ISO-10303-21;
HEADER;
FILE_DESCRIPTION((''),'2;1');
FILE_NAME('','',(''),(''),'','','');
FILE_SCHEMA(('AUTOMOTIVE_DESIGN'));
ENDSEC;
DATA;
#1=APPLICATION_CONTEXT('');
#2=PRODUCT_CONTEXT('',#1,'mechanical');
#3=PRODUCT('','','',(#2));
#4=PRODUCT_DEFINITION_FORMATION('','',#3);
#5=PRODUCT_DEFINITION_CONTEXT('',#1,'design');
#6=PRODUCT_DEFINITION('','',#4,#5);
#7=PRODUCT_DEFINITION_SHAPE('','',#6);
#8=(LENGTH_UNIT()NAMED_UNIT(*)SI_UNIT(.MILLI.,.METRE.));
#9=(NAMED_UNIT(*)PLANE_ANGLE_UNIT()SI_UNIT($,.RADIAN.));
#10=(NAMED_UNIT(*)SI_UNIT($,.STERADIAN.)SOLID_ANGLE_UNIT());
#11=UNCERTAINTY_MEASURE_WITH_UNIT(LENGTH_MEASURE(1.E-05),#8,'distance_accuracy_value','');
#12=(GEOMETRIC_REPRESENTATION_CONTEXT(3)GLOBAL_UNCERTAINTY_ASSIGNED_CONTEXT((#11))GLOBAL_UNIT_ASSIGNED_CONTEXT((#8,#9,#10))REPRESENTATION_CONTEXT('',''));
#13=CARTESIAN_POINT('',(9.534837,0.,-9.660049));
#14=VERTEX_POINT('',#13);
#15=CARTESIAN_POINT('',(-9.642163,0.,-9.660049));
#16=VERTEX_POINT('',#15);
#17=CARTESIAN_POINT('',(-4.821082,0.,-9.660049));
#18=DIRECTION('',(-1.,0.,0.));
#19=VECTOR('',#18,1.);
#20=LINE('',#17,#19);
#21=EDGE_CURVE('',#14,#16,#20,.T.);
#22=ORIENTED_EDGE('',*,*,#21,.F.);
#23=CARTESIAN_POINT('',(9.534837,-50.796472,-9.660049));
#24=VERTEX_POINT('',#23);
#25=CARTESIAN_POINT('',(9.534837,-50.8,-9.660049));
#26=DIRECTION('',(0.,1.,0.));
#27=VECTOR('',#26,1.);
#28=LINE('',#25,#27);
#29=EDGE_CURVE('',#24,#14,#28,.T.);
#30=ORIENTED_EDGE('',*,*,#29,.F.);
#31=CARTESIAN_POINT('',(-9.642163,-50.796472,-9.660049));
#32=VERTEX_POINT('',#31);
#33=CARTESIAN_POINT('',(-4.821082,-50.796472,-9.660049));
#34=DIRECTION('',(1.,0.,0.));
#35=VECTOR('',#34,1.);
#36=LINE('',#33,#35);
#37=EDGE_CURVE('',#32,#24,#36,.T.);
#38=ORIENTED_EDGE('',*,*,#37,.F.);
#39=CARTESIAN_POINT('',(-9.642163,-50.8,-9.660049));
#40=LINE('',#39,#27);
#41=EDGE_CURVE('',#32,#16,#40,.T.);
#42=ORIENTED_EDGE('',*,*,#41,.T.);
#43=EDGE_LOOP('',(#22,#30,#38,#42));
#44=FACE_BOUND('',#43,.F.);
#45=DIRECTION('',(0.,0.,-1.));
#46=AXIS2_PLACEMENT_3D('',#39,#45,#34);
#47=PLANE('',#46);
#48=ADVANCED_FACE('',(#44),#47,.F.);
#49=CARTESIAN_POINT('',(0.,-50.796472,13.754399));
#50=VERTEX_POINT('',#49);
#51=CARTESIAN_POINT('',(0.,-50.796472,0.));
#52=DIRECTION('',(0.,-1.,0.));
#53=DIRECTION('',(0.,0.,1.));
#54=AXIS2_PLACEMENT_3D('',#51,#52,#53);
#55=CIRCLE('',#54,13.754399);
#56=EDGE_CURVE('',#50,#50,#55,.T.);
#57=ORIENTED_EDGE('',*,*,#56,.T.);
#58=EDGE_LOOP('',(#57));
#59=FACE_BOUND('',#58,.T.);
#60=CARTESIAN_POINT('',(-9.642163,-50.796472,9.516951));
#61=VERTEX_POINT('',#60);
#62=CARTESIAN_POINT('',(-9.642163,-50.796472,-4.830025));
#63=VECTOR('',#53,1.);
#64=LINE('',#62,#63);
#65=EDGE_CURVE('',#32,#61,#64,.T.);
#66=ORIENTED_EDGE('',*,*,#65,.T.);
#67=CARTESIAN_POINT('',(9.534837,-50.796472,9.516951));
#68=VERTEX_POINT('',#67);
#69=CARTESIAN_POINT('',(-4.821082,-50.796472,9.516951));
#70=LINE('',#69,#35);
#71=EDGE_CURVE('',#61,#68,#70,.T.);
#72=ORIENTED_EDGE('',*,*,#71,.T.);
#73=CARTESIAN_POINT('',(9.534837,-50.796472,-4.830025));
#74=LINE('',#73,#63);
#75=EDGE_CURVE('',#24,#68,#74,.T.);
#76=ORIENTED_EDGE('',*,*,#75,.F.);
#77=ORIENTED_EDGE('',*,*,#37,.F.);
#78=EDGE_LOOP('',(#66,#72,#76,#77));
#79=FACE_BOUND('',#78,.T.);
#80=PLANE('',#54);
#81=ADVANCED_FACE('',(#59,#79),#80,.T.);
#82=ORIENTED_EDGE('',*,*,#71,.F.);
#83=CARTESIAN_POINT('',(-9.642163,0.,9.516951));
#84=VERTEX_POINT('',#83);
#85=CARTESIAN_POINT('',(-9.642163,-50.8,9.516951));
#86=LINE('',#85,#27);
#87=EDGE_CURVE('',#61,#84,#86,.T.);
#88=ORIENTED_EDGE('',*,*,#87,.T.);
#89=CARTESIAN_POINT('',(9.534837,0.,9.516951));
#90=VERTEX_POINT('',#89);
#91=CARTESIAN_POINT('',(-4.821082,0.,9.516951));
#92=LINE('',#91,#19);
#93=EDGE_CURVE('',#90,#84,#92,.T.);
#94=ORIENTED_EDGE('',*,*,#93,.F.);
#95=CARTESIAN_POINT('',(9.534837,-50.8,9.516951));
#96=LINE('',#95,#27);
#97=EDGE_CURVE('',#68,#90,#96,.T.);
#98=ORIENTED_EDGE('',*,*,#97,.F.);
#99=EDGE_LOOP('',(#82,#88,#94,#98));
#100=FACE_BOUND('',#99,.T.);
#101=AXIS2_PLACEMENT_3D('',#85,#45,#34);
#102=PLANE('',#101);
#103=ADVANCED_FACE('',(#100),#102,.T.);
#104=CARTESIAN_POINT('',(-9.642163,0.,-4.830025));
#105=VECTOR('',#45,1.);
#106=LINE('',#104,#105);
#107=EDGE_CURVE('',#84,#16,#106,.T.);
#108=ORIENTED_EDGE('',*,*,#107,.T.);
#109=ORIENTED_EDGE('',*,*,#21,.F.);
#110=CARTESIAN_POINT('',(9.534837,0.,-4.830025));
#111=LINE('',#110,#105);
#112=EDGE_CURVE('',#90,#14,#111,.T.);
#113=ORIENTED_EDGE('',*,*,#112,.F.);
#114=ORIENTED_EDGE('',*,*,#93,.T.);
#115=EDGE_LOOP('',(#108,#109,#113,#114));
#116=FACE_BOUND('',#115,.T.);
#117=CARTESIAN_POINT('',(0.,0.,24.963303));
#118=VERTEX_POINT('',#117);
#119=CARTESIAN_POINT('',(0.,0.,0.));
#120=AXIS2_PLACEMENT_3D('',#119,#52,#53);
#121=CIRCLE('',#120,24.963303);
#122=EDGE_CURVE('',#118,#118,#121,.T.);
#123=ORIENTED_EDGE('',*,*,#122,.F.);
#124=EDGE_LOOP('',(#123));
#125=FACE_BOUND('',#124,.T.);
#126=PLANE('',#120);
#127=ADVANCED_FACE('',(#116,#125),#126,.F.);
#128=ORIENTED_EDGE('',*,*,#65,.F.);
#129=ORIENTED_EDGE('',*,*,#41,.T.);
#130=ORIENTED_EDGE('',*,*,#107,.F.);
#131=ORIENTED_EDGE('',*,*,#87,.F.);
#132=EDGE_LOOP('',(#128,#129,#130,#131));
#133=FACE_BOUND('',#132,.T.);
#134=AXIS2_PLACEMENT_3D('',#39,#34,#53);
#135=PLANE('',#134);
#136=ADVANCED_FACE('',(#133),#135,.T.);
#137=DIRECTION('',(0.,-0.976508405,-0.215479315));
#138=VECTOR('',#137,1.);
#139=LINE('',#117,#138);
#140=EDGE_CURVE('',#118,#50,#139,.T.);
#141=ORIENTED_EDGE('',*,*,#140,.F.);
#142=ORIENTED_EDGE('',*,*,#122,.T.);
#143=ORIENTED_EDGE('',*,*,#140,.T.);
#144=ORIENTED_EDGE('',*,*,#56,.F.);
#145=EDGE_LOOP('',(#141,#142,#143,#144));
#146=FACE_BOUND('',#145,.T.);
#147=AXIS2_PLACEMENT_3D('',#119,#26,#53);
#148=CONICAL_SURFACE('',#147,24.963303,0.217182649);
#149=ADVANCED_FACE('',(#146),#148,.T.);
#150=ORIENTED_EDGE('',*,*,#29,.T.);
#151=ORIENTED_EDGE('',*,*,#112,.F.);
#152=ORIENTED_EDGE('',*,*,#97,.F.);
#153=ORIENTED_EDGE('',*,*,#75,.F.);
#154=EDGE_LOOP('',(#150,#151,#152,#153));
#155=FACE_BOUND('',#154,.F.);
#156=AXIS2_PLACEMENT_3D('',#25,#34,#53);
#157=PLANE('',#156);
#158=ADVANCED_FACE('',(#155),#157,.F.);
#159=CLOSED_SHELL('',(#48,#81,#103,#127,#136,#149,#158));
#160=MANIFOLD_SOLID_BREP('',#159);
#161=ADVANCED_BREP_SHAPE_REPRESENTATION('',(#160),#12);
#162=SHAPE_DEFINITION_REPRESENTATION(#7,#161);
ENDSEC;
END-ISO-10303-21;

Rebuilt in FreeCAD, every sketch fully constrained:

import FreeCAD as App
import Part
import Sketcher
Q = App.Units.Quantity

doc = App.newDocument("Part")
body = doc.addObject("PartDesign::Body", "Body")

sketch1 = body.newObject("Sketcher::SketchObject", "Sketch")
sketch1.AttachmentSupport = (doc.getObject("YZ_Plane"), [""])
sketch1.MapMode = "FlatFace"
sketch1.addGeometry([
    Part.LineSegment(App.Vector(-50.796472, 0, 0), App.Vector(0, 0, 0)),
    Part.LineSegment(App.Vector(0, 0, 0), App.Vector(0, 24.963303, 0)),
    Part.LineSegment(App.Vector(0, 24.963303, 0), App.Vector(-50.796472, 13.754399, 0)),
    Part.LineSegment(App.Vector(-50.796472, 13.754399, 0), App.Vector(-50.796472, 0, 0)),
], False)
sketch1.addConstraint([
    Sketcher.Constraint("Coincident", 0, 2, 1, 1),
    Sketcher.Constraint("Coincident", 1, 2, 2, 1),
    Sketcher.Constraint("Coincident", 2, 2, 3, 1),
    Sketcher.Constraint("Coincident", 3, 2, 0, 1),
    Sketcher.Constraint("Horizontal", 0),
    Sketcher.Constraint("Vertical", 1),
    Sketcher.Constraint("Vertical", 3),
    Sketcher.Constraint("Coincident", 0, 2, -1, 1),
    Sketcher.Constraint("DistanceY", 3, 2, 3, 1, 13.754399),
    Sketcher.Constraint("Distance", 2, 52.018469),
    Sketcher.Constraint("DistanceX", 0, 1, 0, 2, 50.796472),
])
revolution = body.newObject("PartDesign::Revolution", "Revolution")
revolution.Profile = sketch1
revolution.ReferenceAxis = (sketch1, ["H_Axis"])
revolution.Angle = 360

sketch2 = body.newObject("Sketcher::SketchObject", "Sketch001")
sketch2.AttachmentSupport = (doc.getObject("XZ_Plane"), [""])
sketch2.MapMode = "FlatFace"
sketch2.AttachmentOffset = App.Placement(App.Vector(0, 0, 2 * 25.4), App.Rotation())
sketch2.addGeometry([
    Part.LineSegment(App.Vector(-9.642163, 9.516951, 0), App.Vector(-9.642163, -9.660049, 0)),
    Part.LineSegment(App.Vector(-9.642163, -9.660049, 0), App.Vector(9.534837, -9.660049, 0)),
    Part.LineSegment(App.Vector(9.534837, -9.660049, 0), App.Vector(9.534837, 9.516951, 0)),
    Part.LineSegment(App.Vector(9.534837, 9.516951, 0), App.Vector(-9.642163, 9.516951, 0)),
], False)
sketch2.addConstraint([
    Sketcher.Constraint("Coincident", 0, 2, 1, 1),
    Sketcher.Constraint("Coincident", 1, 2, 2, 1),
    Sketcher.Constraint("Coincident", 2, 2, 3, 1),
    Sketcher.Constraint("Coincident", 3, 2, 0, 1),
    Sketcher.Constraint("Vertical", 0),
    Sketcher.Constraint("Horizontal", 1),
    Sketcher.Constraint("Vertical", 2),
    Sketcher.Constraint("Horizontal", 3),
    Sketcher.Constraint("Equal", 3, 0),
    Sketcher.Constraint("DistanceX", 1, 1, 1, 2, Q("0.755 in")),
    Sketcher.Constraint("DistanceY", 0, 2, -1, 1, 9.660049),
    Sketcher.Constraint("DistanceX", 0, 2, -1, 1, 9.642163),
])
pocket1 = body.newObject("PartDesign::Pocket", "Pocket")
pocket1.Profile = sketch2
pocket1.Length = Q("2.44 in")

doc.recompute()
